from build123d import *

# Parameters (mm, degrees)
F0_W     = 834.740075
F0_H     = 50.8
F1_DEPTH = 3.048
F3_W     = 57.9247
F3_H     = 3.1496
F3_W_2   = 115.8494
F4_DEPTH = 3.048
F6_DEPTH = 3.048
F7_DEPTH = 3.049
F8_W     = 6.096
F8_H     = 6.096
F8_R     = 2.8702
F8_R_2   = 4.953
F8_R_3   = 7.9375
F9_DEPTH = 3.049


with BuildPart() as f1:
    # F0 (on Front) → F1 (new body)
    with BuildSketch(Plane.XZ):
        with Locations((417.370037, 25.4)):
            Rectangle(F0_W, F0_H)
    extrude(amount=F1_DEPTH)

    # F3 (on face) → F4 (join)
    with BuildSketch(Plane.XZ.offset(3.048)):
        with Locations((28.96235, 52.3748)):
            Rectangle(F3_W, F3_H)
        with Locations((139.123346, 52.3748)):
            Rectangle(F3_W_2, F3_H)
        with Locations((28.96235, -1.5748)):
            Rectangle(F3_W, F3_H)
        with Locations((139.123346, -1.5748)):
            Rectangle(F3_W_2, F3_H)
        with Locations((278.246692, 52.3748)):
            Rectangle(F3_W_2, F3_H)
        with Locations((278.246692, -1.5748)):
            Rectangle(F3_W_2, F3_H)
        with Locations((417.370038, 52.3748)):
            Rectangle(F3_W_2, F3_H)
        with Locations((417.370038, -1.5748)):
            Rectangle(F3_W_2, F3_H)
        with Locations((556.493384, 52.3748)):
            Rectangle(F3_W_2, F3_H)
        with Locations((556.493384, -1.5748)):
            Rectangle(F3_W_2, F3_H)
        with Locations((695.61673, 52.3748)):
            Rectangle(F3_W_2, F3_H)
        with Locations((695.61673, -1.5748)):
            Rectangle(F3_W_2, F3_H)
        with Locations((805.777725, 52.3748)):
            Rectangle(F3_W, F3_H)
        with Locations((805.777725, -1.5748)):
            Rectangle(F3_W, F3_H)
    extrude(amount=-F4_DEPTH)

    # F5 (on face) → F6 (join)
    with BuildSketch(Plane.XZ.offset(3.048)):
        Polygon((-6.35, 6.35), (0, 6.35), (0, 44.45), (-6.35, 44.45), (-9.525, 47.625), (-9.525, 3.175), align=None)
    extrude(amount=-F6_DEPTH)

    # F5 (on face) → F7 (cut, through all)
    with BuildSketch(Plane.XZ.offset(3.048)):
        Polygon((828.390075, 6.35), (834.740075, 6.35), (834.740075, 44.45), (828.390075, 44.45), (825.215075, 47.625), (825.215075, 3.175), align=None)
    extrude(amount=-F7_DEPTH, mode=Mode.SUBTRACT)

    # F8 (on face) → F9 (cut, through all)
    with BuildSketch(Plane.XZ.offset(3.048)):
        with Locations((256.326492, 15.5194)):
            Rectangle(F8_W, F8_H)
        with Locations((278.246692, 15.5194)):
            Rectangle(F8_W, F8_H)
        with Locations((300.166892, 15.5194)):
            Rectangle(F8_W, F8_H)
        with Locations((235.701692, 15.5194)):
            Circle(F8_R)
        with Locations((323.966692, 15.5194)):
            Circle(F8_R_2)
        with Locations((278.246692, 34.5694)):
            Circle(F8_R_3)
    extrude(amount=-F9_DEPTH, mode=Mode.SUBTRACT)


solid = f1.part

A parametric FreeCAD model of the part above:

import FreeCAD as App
import Part
import Sketcher
from FreeCAD import Vector
Q = App.Units.Quantity


def add_polygon(sketch, points):
    """Adds a closed chain of lines whose ends are joined by coincident constraints."""
    first, n = sketch.GeometryCount, len(points)
    for a, b in zip(points, points[1:] + points[:1]):
        sketch.addGeometry(Part.LineSegment(App.Vector(*a, 0), App.Vector(*b, 0)), False)
    for i in range(n):
        sketch.addConstraint(Sketcher.Constraint("Coincident", first + i, 2, first + (i + 1) % n, 1))

doc = App.newDocument("Part")
body = doc.addObject("PartDesign::Body", "Body")

sketch1 = body.newObject("Sketcher::SketchObject", "Sketch")
sketch1.AttachmentSupport = (doc.getObject("XZ_Plane"), [""])
sketch1.MapMode = "FlatFace"
add_polygon(sketch1, [(0, 51), (0, 0), (835, 0), (835, 51)])
sketch1.addConstraint([
    Sketcher.Constraint("Vertical", 0),
    Sketcher.Constraint("Horizontal", 1),
    Sketcher.Constraint("Vertical", 2),
    Sketcher.Constraint("Horizontal", 3),
    Sketcher.Constraint("Coincident", 0, 2, -1, 1),
    Sketcher.Constraint("DistanceY", 0, 2, 0, 1, Q("2 in")),
    Sketcher.Constraint("DistanceX", 1, 1, 1, 2, 834.740075),
])
pad1 = body.newObject("PartDesign::Pad", "Pad")
pad1.Profile = sketch1
pad1.Length = Q("0.12 in")

sketch2 = body.newObject("Sketcher::SketchObject", "Sketch001")
sketch2.AttachmentSupport = (doc.getObject("XZ_Plane"), [""])
sketch2.MapMode = "FlatFace"
sketch2.AttachmentOffset = App.Placement(Vector(0, 0, 0.12 * 25.4), App.Rotation())
add_polygon(sketch2, [(0, 53.9), (0, 50.8), (57.9, 50.8), (57.9, 53.9)])
add_polygon(sketch2, [(81.2, 53.9), (81.2, 50.8), (197, 50.8), (197, 53.9)])
add_polygon(sketch2, [(0, 0), (0, -3.1), (57.9, -3.1), (57.9, 0)])
add_polygon(sketch2, [(81.2, 0), (81.2, -3.1), (197, -3.1), (197, 0)])
add_polygon(sketch2, [(220.3, 53.9), (220.3, 50.8), (336.2, 50.8), (336.2, 53.9)])
add_polygon(sketch2, [(220.3, 0), (220.3, -3.1), (336.2, -3.1), (336.2, 0)])
add_polygon(sketch2, [(359.4, 53.9), (359.4, 50.8), (475.3, 50.8), (475.3, 53.9)])
add_polygon(sketch2, [(359.4, 0), (359.4, -3.1), (475.3, -3.1), (475.3, 0)])
add_polygon(sketch2, [(498.6, 53.9), (498.6, 50.8), (614.4, 50.8), (614.4, 53.9)])
add_polygon(sketch2, [(498.6, 0), (498.6, -3.1), (614.4, -3.1), (614.4, 0)])
add_polygon(sketch2, [(637.7, 53.9), (637.7, 50.8), (753.5, 50.8), (753.5, 53.9)])
add_polygon(sketch2, [(637.7, 0), (637.7, -3.1), (753.5, -3.1), (753.5, 0)])
add_polygon(sketch2, [(776.8, 53.9), (776.8, 50.8), (834.7, 50.8), (834.7, 53.9)])
add_polygon(sketch2, [(776.8, 0), (776.8, -3.1), (834.7, -3.1), (834.7, 0)])
sketch2.addConstraint([
    Sketcher.Constraint("Vertical", 0),
    Sketcher.Constraint("Horizontal", 1),
    Sketcher.Constraint("Vertical", 2),
    Sketcher.Constraint("Horizontal", 3),
    Sketcher.Constraint("Vertical", 4),
    Sketcher.Constraint("Horizontal", 5),
    Sketcher.Constraint("Vertical", 6),
    Sketcher.Constraint("Horizontal", 7),
    Sketcher.Constraint("Vertical", 8),
    Sketcher.Constraint("Horizontal", 9),
    Sketcher.Constraint("Vertical", 10),
    Sketcher.Constraint("Horizontal", 11),
    Sketcher.Constraint("Vertical", 12),
    Sketcher.Constraint("Horizontal", 13),
    Sketcher.Constraint("Vertical", 14),
    Sketcher.Constraint("Horizontal", 15),
    Sketcher.Constraint("Vertical", 16),
    Sketcher.Constraint("Horizontal", 17),
    Sketcher.Constraint("Vertical", 18),
    Sketcher.Constraint("Horizontal", 19),
    Sketcher.Constraint("Vertical", 20),
    Sketcher.Constraint("Horizontal", 21),
    Sketcher.Constraint("Vertical", 22),
    Sketcher.Constraint("Horizontal", 23),
    Sketcher.Constraint("Vertical", 24),
    Sketcher.Constraint("Horizontal", 25),
    Sketcher.Constraint("Vertical", 26),
    Sketcher.Constraint("Horizontal", 27),
    Sketcher.Constraint("Vertical", 28),
    Sketcher.Constraint("Horizontal", 29),
    Sketcher.Constraint("Vertical", 30),
    Sketcher.Constraint("Horizontal", 31),
    Sketcher.Constraint("Vertical", 32),
    Sketcher.Constraint("Horizontal", 33),
    Sketcher.Constraint("Vertical", 34),
    Sketcher.Constraint("Horizontal", 35),
    Sketcher.Constraint("Vertical", 36),
    Sketcher.Constraint("Horizontal", 37),
    Sketcher.Constraint("Vertical", 38),
    Sketcher.Constraint("Horizontal", 39),
    Sketcher.Constraint("Vertical", 40),
    Sketcher.Constraint("Horizontal", 41),
    Sketcher.Constraint("Vertical", 42),
    Sketcher.Constraint("Horizontal", 43),
    Sketcher.Constraint("Vertical", 44),
    Sketcher.Constraint("Horizontal", 45),
    Sketcher.Constraint("Vertical", 46),
    Sketcher.Constraint("Horizontal", 47),
    Sketcher.Constraint("Vertical", 48),
    Sketcher.Constraint("Horizontal", 49),
    Sketcher.Constraint("Vertical", 50),
    Sketcher.Constraint("Horizontal", 51),
    Sketcher.Constraint("Vertical", 52),
    Sketcher.Constraint("Horizontal", 53),
    Sketcher.Constraint("Vertical", 54),
    Sketcher.Constraint("Horizontal", 55),
    Sketcher.Constraint("Coincident", 11, 2, -1, 1),
    Sketcher.Constraint("PointOnObject", 0, 2, -2),
    Sketcher.Constraint("PointOnObject", 14, 2, -1),
    Sketcher.Constraint("PointOnObject", 22, 2, -1),
    Sketcher.Constraint("PointOnObject", 30, 2, -1),
    Sketcher.Constraint("PointOnObject", 38, 2, -1),
    Sketcher.Constraint("PointOnObject", 46, 2, -1),
    Sketcher.Constraint("PointOnObject", 54, 2, -1),
    Sketcher.Constraint("Horizontal", 1, 2, 4, 2),
    Sketcher.Constraint("Horizontal", 3, 2, 6, 2),
    Sketcher.Constraint("Horizontal", 9, 2, 12, 2),
    Sketcher.Constraint("Horizontal", 5, 2, 16, 2),
    Sketcher.Constraint("Horizontal", 7, 2, 18, 2),
    Sketcher.Constraint("Horizontal", 13, 2, 20, 2),
    Sketcher.Constraint("Horizontal", 17, 2, 24, 2),
    Sketcher.Constraint("Horizontal", 19, 2, 26, 2),
    Sketcher.Constraint("Horizontal", 21, 2, 28, 2),
    Sketcher.Constraint("Horizontal", 25, 2, 32, 2),
    Sketcher.Constraint("Horizontal", 27, 2, 34, 2),
    Sketcher.Constraint("Horizontal", 29, 2, 36, 2),
    Sketcher.Constraint("Horizontal", 33, 2, 40, 2),
    Sketcher.Constraint("Horizontal", 35, 2, 42, 2),
    Sketcher.Constraint("Horizontal", 37, 2, 44, 2),
    Sketcher.Constraint("Horizontal", 41, 2, 48, 2),
    Sketcher.Constraint("Horizontal", 43, 2, 50, 2),
    Sketcher.Constraint("Horizontal", 45, 2, 52, 2),
    Sketcher.Constraint("Vertical", 2, 2, 9, 2),
    Sketcher.Constraint("Vertical", 7, 2, 12, 2),
    Sketcher.Constraint("Vertical", 6, 2, 13, 2),
    Sketcher.Constraint("Vertical", 19, 2, 20, 2),
    Sketcher.Constraint("Vertical", 18, 2, 21, 2),
    Sketcher.Constraint("Vertical", 27, 2, 28, 2),
    Sketcher.Constraint("Vertical", 26, 2, 29, 2),
    Sketcher.Constraint("Vertical", 35, 2, 36, 2),
    Sketcher.Constraint("Vertical", 34, 2, 37, 2),
    Sketcher.Constraint("Vertical", 43, 2, 44, 2),
    Sketcher.Constraint("Vertical", 42, 2, 45, 2),
    Sketcher.Constraint("Vertical", 51, 2, 52, 2),
    Sketcher.Constraint("Vertical", 50, 2, 53, 2),
    Sketcher.Constraint("Equal", 15, 17),
    Sketcher.Constraint("Equal", 23, 25),
    Sketcher.Constraint("Equal", 31, 33),
    Sketcher.Constraint("Equal", 39, 41),
    Sketcher.Constraint("Equal", 11, 49),
    Sketcher.Constraint("Equal", 6, 8),
    Sketcher.Constraint("DistanceY", -1, 1, 0, 2, Q("2 in")),
    Sketcher.Constraint("DistanceX", 5, 1, 5, 2, Q("4.561 in")),
    Sketcher.Constraint("DistanceY", 0, 2, 0, 1, Q("0.124 in")),
    Sketcher.Constraint("DistanceX", 1, 1, 1, 2, Q("2.2805 in")),
    Sketcher.Constraint("DistanceX", -1, 1, 16, 2, 220.321992),
    Sketcher.Constraint("DistanceX", -1, 1, 24, 2, 359.445338),
    Sketcher.Constraint("DistanceX", -1, 1, 40, 2, 637.69203),
    Sketcher.Constraint("DistanceX", -1, 1, 4, 2, 81.198646),
    Sketcher.Constraint("DistanceX", -1, 1, 32, 2, 498.568684),
    Sketcher.Constraint("DistanceX", -1, 1, 48, 2, 776.815375),
])
pad2 = body.newObject("PartDesign::Pad", "Pad001")
pad2.Profile = sketch2
pad2.Length = Q("0.12 in")
pad2.Reversed = True

sketch3 = body.newObject("Sketcher::SketchObject", "Sketch002")
sketch3.AttachmentSupport = (doc.getObject("XZ_Plane"), [""])
sketch3.MapMode = "FlatFace"
sketch3.AttachmentOffset = App.Placement(Vector(0, 0, 0.12 * 25.4), App.Rotation())
add_polygon(sketch3, [(-6.3, 6.3), (0, 6.3), (0, 44.5), (-6.3, 44.5), (-9.5, 47.6), (-9.5, 3.2)])
sketch3.addConstraint([
    Sketcher.Constraint("Horizontal", 0),
    Sketcher.Constraint("Vertical", 1),
    Sketcher.Constraint("Horizontal", 2),
    Sketcher.Constraint("Vertical", 4),
    Sketcher.Constraint("PointOnObject", 0, 2, -2),
    Sketcher.Constraint("Perpendicular", 3, 5),
    Sketcher.Constraint("Vertical", 2, 2, 5, 2),
    Sketcher.Constraint("Equal", 3, 5),
    Sketcher.Constraint("DistanceY", 1, 1, 1, 2, Q("1.5 in")),
    Sketcher.Constraint("DistanceX", 0, 1, 0, 2, Q("0.25 in")),
    Sketcher.Constraint("DistanceY", 4, 2, 4, 1, Q("1.75 in")),
    Sketcher.Constraint("DistanceY", -1, 1, 0, 2, Q("0.25 in")),
])
pad3 = body.newObject("PartDesign::Pad", "Pad002")
pad3.Profile = sketch3
pad3.Length = Q("0.12 in")
pad3.Reversed = True

sketch4 = body.newObject("Sketcher::SketchObject", "Sketch003")
sketch4.AttachmentSupport = (doc.getObject("XZ_Plane"), [""])
sketch4.MapMode = "FlatFace"
sketch4.AttachmentOffset = App.Placement(Vector(0, 0, 0.12 * 25.4), App.Rotation())
add_polygon(sketch4, [(828.4, 6.3), (834.7, 6.3), (834.7, 44.5), (828.4, 44.5), (825.2, 47.6), (825.2, 3.2)])
sketch4.addConstraint([
    Sketcher.Constraint("Horizontal", 0),
    Sketcher.Constraint("Vertical", 1),
    Sketcher.Constraint("Horizontal", 2),
    Sketcher.Constraint("Vertical", 4),
    Sketcher.Constraint("Perpendicular", 3, 5),
    Sketcher.Constraint("Vertical", 2, 2, 5, 2),
    Sketcher.Constraint("Equal", 3, 5),
    Sketcher.Constraint("DistanceY", 1, 1, 1, 2, Q("1.5 in")),
    Sketcher.Constraint("DistanceX", 0, 1, 0, 2, Q("0.25 in")),
    Sketcher.Constraint("DistanceY", 4, 2, 4, 1, Q("1.75 in")),
    Sketcher.Constraint("DistanceY", -1, 1, 0, 2, Q("0.25 in")),
    Sketcher.Constraint("DistanceX", -1, 1, 0, 2, 834.740075),
])
pocket1 = body.newObject("PartDesign::Pocket", "Pocket")
pocket1.Profile = sketch4
pocket1.Type = "ThroughAll"

sketch5 = body.newObject("Sketcher::SketchObject", "Sketch004")
sketch5.AttachmentSupport = (doc.getObject("XZ_Plane"), [""])
sketch5.MapMode = "FlatFace"
sketch5.AttachmentOffset = App.Placement(Vector(0, 0, 0.12 * 25.4), App.Rotation())
add_polygon(sketch5, [(253.3, 18.6), (253.3, 12.5), (259.4, 12.5), (259.4, 18.6)])
add_polygon(sketch5, [(275.2, 18.6), (275.2, 12.5), (281.3, 12.5), (281.3, 18.6)])
add_polygon(sketch5, [(297.1, 18.6), (297.1, 12.5), (303.2, 12.5), (303.2, 18.6)])
sketch5.addGeometry(Part.Circle(Vector(235.7, 15.5, 0), Vector(0, 0, 1), 2.9), False)
sketch5.addGeometry(Part.Circle(Vector(324, 15.5, 0), Vector(0, 0, 1), 5), False)
sketch5.addGeometry(Part.Circle(Vector(278.2, 34.6, 0), Vector(0, 0, 1), 7.9), False)
sketch5.addConstraint([
    Sketcher.Constraint("Vertical", 0),
    Sketcher.Constraint("Horizontal", 1),
    Sketcher.Constraint("Vertical", 2),
    Sketcher.Constraint("Horizontal", 3),
    Sketcher.Constraint("Vertical", 4),
    Sketcher.Constraint("Horizontal", 5),
    Sketcher.Constraint("Vertical", 6),
    Sketcher.Constraint("Horizontal", 7),
    Sketcher.Constraint("Vertical", 8),
    Sketcher.Constraint("Horizontal", 9),
    Sketcher.Constraint("Vertical", 10),
    Sketcher.Constraint("Horizontal", 11),
    Sketcher.Constraint("Horizontal", 12, 3, 13, 3),
    Sketcher.Constraint("Horizontal", 1, 2, 4, 2),
    Sketcher.Constraint("Horizontal", 3, 2, 6, 2),
    Sketcher.Constraint("Horizontal", 5, 2, 8, 2),
    Sketcher.Constraint("Horizontal", 7, 2, 10, 2),
    Sketcher.Constraint("Equal", 3, 5),
    Sketcher.Constraint("Equal", 7, 9),
    Sketcher.Constraint("Equal", 11, 0),
    Sketcher.Constraint("Diameter", 13, Q("0.39 in")),
    Sketcher.Constraint("Diameter", 12, Q("0.226 in")),
    Sketcher.Constraint("Diameter", 14, Q("0.625 in")),
    Sketcher.Constraint("DistanceX", 1, 1, 1, 2, Q("0.24 in")),
    Sketcher.Constraint("DistanceX", 14, 3, 13, 3, Q("1.8 in")),
    Sketcher.Constraint("DistanceY", 12, 3, 14, 3, Q("0.75 in")),
    Sketcher.Constraint("DistanceY", 0, 2, 12, 3, Q("0.12 in")),
    Sketcher.Constraint("DistanceX", 4, 2, 14, 3, Q("0.12 in")),
    Sketcher.Constraint("DistanceY", -1, 1, 12, 3, Q("0.611 in")),
    Sketcher.Constraint("DistanceX", 12, 3, 13, 3, Q("3.475 in")),
    Sketcher.Constraint("DistanceX", 12, 3, 0, 2, Q("0.692 in")),
    Sketcher.Constraint("DistanceX", 5, 2, 8, 2, Q("0.623 in")),
    Sketcher.Constraint("DistanceX", -1, 1, 12, 3, 235.701692),
])
pocket2 = body.newObject("PartDesign::Pocket", "Pocket001")
pocket2.Profile = sketch5
pocket2.Type = "ThroughAll"

doc.recompute()
